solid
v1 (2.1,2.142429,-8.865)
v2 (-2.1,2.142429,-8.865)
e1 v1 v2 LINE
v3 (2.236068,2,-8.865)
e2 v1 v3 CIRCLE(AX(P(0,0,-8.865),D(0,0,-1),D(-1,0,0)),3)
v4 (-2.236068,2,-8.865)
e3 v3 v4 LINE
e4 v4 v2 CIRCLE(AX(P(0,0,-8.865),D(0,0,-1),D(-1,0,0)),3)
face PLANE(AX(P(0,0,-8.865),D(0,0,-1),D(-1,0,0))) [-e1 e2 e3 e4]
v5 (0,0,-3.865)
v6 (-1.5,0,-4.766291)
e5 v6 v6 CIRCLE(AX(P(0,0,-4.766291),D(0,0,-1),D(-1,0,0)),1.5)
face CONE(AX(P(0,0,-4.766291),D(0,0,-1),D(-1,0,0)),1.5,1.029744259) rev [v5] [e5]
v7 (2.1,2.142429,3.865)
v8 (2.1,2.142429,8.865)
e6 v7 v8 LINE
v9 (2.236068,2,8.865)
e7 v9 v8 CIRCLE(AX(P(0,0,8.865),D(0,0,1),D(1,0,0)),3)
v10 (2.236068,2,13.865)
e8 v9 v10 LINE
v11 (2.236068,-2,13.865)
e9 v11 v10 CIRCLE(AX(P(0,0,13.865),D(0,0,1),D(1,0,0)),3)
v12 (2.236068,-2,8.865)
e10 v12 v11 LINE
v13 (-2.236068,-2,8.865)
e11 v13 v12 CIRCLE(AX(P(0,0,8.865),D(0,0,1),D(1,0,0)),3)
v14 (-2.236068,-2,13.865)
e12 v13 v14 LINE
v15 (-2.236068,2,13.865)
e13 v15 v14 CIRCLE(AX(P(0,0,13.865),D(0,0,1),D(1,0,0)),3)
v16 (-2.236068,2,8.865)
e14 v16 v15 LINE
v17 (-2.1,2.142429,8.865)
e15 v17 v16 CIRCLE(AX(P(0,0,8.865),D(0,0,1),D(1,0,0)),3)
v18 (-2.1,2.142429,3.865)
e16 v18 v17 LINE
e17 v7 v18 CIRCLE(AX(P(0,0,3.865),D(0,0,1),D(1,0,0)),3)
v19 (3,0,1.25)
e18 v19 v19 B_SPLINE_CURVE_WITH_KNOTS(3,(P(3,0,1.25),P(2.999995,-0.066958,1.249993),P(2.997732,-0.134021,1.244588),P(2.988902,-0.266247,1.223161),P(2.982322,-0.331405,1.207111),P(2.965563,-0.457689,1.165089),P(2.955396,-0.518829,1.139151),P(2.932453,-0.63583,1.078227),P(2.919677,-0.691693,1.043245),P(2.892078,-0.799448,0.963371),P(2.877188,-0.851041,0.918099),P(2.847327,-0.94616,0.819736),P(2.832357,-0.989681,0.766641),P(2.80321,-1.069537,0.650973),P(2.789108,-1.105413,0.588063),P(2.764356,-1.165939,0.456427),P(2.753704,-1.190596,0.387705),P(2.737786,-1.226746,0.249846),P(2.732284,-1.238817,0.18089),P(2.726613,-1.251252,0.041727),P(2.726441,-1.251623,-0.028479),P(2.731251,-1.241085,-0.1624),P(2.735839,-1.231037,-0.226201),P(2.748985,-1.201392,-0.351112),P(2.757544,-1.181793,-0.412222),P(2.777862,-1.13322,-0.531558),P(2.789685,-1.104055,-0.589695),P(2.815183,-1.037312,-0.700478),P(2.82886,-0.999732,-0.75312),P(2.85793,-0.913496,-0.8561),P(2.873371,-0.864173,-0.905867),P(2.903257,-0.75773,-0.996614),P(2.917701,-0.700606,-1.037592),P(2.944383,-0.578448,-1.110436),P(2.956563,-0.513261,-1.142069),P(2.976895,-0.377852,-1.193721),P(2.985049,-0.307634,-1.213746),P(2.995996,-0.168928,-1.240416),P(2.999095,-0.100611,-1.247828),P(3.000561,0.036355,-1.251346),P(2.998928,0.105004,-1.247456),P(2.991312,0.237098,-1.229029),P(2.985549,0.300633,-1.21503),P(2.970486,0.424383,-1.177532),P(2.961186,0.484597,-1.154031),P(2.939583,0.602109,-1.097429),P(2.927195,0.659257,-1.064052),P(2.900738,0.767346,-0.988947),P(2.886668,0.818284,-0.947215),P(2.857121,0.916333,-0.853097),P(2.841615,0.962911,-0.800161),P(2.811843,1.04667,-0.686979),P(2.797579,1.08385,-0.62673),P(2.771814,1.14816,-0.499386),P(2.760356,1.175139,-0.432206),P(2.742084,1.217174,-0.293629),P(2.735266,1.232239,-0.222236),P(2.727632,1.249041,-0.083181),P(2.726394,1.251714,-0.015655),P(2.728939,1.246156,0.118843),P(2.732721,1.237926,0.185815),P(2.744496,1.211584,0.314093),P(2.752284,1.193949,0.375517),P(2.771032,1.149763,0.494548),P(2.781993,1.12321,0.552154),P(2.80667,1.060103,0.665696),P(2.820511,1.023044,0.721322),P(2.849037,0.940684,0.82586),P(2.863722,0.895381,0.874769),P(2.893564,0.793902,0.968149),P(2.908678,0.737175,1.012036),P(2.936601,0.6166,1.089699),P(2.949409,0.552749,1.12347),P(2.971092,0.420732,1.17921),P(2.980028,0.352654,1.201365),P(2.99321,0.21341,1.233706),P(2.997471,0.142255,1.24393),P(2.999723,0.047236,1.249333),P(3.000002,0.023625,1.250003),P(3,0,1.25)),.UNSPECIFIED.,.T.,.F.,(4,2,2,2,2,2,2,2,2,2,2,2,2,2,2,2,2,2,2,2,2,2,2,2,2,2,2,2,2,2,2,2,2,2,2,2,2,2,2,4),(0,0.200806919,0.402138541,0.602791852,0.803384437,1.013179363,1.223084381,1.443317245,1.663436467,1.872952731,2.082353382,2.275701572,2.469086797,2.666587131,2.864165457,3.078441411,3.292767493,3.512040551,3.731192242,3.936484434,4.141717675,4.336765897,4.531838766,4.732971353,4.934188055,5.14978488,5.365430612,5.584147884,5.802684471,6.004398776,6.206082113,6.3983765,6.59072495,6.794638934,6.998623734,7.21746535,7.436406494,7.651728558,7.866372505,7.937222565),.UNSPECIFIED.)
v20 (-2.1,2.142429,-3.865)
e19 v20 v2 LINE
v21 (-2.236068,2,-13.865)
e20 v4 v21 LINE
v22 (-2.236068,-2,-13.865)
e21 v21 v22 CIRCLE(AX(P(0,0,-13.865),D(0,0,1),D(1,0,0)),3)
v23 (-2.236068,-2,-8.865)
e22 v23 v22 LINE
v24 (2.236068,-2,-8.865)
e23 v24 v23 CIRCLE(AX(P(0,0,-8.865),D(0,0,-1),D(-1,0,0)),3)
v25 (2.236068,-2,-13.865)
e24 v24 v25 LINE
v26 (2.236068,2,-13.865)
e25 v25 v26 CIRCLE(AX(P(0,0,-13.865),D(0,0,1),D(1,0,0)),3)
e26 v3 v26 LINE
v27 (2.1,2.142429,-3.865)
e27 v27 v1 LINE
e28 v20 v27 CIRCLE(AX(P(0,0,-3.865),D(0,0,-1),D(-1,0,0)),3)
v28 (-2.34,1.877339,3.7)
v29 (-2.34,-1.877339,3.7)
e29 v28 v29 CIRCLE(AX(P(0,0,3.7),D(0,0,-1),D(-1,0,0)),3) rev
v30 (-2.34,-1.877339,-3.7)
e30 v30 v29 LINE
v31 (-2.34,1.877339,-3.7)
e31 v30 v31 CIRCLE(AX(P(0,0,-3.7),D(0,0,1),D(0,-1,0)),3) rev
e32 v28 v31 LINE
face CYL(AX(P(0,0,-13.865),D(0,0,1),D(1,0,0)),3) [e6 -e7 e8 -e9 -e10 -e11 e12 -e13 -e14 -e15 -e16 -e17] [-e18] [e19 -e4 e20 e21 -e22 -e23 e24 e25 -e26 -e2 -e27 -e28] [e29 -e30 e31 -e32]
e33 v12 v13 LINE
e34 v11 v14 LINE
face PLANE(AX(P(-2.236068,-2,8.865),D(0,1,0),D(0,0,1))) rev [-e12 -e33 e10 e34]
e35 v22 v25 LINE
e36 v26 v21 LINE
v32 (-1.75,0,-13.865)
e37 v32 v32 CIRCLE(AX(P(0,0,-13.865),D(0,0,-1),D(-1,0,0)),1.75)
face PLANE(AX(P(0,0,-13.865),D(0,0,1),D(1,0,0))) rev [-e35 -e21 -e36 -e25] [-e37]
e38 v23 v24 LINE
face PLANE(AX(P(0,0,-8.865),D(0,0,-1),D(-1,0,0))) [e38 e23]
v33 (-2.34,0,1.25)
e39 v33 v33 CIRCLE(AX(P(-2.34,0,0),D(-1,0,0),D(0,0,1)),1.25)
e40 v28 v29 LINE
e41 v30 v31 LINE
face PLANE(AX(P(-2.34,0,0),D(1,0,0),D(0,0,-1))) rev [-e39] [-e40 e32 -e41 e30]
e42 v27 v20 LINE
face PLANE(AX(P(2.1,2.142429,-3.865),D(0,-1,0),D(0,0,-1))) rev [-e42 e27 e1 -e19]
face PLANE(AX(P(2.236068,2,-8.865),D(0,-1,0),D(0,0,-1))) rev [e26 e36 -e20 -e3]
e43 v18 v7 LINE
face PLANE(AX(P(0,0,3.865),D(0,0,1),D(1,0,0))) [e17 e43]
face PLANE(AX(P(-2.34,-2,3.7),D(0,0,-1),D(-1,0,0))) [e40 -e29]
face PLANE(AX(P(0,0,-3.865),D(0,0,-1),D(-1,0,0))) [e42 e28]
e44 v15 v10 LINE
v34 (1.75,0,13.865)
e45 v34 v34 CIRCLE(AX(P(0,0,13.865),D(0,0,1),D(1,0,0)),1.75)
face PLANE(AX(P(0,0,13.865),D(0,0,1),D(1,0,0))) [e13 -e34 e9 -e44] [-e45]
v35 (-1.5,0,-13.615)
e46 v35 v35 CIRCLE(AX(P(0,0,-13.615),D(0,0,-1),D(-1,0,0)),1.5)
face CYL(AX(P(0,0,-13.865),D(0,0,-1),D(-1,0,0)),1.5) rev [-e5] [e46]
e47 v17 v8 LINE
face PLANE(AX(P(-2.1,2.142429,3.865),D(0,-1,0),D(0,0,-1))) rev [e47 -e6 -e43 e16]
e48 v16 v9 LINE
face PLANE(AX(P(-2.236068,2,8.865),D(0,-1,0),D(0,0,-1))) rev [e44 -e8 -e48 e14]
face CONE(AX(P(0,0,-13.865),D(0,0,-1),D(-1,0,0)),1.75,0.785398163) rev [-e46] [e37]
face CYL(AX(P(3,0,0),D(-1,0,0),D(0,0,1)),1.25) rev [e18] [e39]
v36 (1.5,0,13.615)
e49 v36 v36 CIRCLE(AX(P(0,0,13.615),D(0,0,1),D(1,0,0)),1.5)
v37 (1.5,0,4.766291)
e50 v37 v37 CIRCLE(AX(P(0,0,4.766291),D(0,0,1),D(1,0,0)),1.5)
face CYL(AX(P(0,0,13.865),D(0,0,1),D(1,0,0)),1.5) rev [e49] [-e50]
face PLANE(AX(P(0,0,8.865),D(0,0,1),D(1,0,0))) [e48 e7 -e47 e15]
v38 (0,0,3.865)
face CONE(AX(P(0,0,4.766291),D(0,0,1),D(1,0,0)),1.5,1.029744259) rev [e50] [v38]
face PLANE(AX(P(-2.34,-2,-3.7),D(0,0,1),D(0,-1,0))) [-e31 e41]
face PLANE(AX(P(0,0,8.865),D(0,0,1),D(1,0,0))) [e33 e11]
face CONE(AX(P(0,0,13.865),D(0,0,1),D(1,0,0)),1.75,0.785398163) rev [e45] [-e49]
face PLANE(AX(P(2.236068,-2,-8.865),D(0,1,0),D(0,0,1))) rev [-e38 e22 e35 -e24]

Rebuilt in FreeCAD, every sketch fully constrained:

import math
import FreeCAD as App
import Part
import Sketcher
Q = App.Units.Quantity

doc = App.newDocument("Part")
body = doc.addObject("PartDesign::Body", "Body")

# Sketch on XY plane
sketch1 = doc.addObject("Sketcher::SketchObject", "Sketch")
body.addObject(sketch1)
sketch1.AttachmentSupport = (doc.XY_Plane, [""])
sketch1.MapMode = "FlatFace"
sketch1.addGeometry(Part.Circle(App.Vector(0, 0, 0), App.Vector(0, 0, 1), 3), False)
sketch1.addConstraint([
    Sketcher.Constraint("Coincident", 0, 3, -1, 1),
    Sketcher.Constraint("Diameter", 0, Q("6 mm")),
])
pad1 = doc.addObject("PartDesign::Pad", "Pad")
body.addObject(pad1)
pad1.Profile = sketch1
pad1.Type = "TwoLengths"
pad1.Length = 13.865
pad1.Length2 = 13.865

# Sketch on XY plane
sketch2 = doc.addObject("Sketcher::SketchObject", "Sketch001")
body.addObject(sketch2)
sketch2.AttachmentSupport = (doc.XY_Plane, [""])
sketch2.MapMode = "FlatFace"
sketch2.AttachmentOffset = App.Placement(App.Vector(0, 0, 13.865), App.Rotation())
sketch2.addGeometry([
    Part.LineSegment(App.Vector(-2.236068, 2, 0), App.Vector(2.236068, 2, 0)),
    Part.ArcOfCircle(Part.Circle(App.Vector(0, 0, 0), App.Vector(0, 0, 1), 3), math.radians(41.810315), math.radians(138.189685)),
    Part.LineSegment(App.Vector(2.236068, -2, 0), App.Vector(-2.236068, -2, 0)),
    Part.ArcOfCircle(Part.Circle(App.Vector(0, 0, 0), App.Vector(0, 0, 1), 3), math.radians(-138.189685), math.radians(-41.810315)),
], False)
sketch2.addConstraint([
    Sketcher.Constraint("Coincident", 0, 1, 1, 2),
    Sketcher.Constraint("Coincident", 1, 1, 0, 2),
    Sketcher.Constraint("Coincident", 2, 1, 3, 2),
    Sketcher.Constraint("Coincident", 3, 1, 2, 2),
    Sketcher.Constraint("Horizontal", 0),
    Sketcher.Constraint("Horizontal", 2),
    Sketcher.Constraint("Coincident", 1, 3, -1, 1),
    Sketcher.Constraint("Coincident", 3, 3, -1, 1),
    Sketcher.Constraint("Equal", 1, 3),
    Sketcher.Constraint("Vertical", 1, 1, 2, 1),
    Sketcher.Constraint("Radius", 1, Q("3 mm")),
    Sketcher.Constraint("DistanceY", -1, 1, 0, 1, Q("2 mm")),
])
pocket1 = doc.addObject("PartDesign::Pocket", "Pocket")
body.addObject(pocket1)
pocket1.Profile = sketch2
pocket1.Length = 5

# Sketch on XY plane
sketch3 = doc.addObject("Sketcher::SketchObject", "Sketch002")
body.addObject(sketch3)
sketch3.AttachmentSupport = (doc.XY_Plane, [""])
sketch3.MapMode = "FlatFace"
sketch3.AttachmentOffset = App.Placement(App.Vector(0, 0, -13.865), App.Rotation())
sketch3.addGeometry([
    Part.LineSegment(App.Vector(2.236068, 2, 0), App.Vector(-2.236068, 2, 0)),
    Part.ArcOfCircle(Part.Circle(App.Vector(0, 0, 0), App.Vector(0, 0, 1), 3), math.radians(41.810315), math.radians(138.189685)),
    Part.LineSegment(App.Vector(-2.236068, -2, 0), App.Vector(2.236068, -2, 0)),
    Part.ArcOfCircle(Part.Circle(App.Vector(0, 0, 0), App.Vector(0, 0, 1), 3), math.radians(-138.189685), math.radians(-41.810315)),
], False)
sketch3.addConstraint([
    Sketcher.Constraint("Coincident", 0, 1, 1, 1),
    Sketcher.Constraint("Coincident", 1, 2, 0, 2),
    Sketcher.Constraint("Coincident", 2, 1, 3, 1),
    Sketcher.Constraint("Coincident", 3, 2, 2, 2),
    Sketcher.Constraint("Horizontal", 0),
    Sketcher.Constraint("Horizontal", 2),
    Sketcher.Constraint("Coincident", 1, 3, -1, 1),
    Sketcher.Constraint("Coincident", 3, 3, -1, 1),
    Sketcher.Constraint("Equal", 1, 3),
    Sketcher.Constraint("Vertical", 1, 2, 2, 1),
    Sketcher.Constraint("Radius", 1, Q("3 mm")),
    Sketcher.Constraint("DistanceY", -1, 1, 0, 1, Q("2 mm")),
])
pocket2 = doc.addObject("PartDesign::Pocket", "Pocket001")
body.addObject(pocket2)
pocket2.Profile = sketch3
pocket2.Length = 5
pocket2.Reversed = True

# Sketch on XY plane
sketch4 = doc.addObject("Sketcher::SketchObject", "Sketch003")
body.addObject(sketch4)
sketch4.AttachmentSupport = (doc.XY_Plane, [""])
sketch4.MapMode = "FlatFace"
sketch4.AttachmentOffset = App.Placement(App.Vector(0, 0, -8.865), App.Rotation())
sketch4.addGeometry([
    Part.LineSegment(App.Vector(2.1, 2.142429, 0), App.Vector(-2.1, 2.142429, 0)),
    Part.ArcOfCircle(Part.Circle(App.Vector(0, 0, 0), App.Vector(0, 0, 1), 3), math.radians(45.572996), math.radians(134.427004)),
], False)
sketch4.addConstraint([
    Sketcher.Constraint("Coincident", 0, 1, 1, 1),
    Sketcher.Constraint("Coincident", 1, 2, 0, 2),
    Sketcher.Constraint("Horizontal", 0),
    Sketcher.Constraint("Coincident", 1, 3, -1, 1),
    Sketcher.Constraint("Radius", 1, Q("3 mm")),
    Sketcher.Constraint("DistanceX", 0, 2, 0, 1, Q("4.2 mm")),
])
pocket3 = doc.addObject("PartDesign::Pocket", "Pocket002")
body.addObject(pocket3)
pocket3.Profile = sketch4
pocket3.Length = 5
pocket3.Reversed = True

# Sketch on XY plane
sketch5 = doc.addObject("Sketcher::SketchObject", "Sketch004")
body.addObject(sketch5)
sketch5.AttachmentSupport = (doc.XY_Plane, [""])
sketch5.MapMode = "FlatFace"
sketch5.AttachmentOffset = App.Placement(App.Vector(0, 0, 3.865), App.Rotation())
sketch5.addGeometry([
    Part.LineSegment(App.Vector(-2.1, 2.142429, 0), App.Vector(2.1, 2.142429, 0)),
    Part.ArcOfCircle(Part.Circle(App.Vector(0, 0, 0), App.Vector(0, 0, 1), 3), math.radians(45.572996), math.radians(134.427004)),
], False)
sketch5.addConstraint([
    Sketcher.Constraint("Coincident", 0, 1, 1, 2),
    Sketcher.Constraint("Coincident", 1, 1, 0, 2),
    Sketcher.Constraint("Horizontal", 0),
    Sketcher.Constraint("Coincident", 1, 3, -1, 1),
    Sketcher.Constraint("Radius", 1, Q("3 mm")),
    Sketcher.Constraint("DistanceX", 0, 1, 0, 2, Q("4.2 mm")),
])
pocket4 = doc.addObject("PartDesign::Pocket", "Pocket003")
body.addObject(pocket4)
pocket4.Profile = sketch5
pocket4.Length = 5
pocket4.Reversed = True

# Sketch on XY plane
sketch6 = doc.addObject("Sketcher::SketchObject", "Sketch005")
body.addObject(sketch6)
sketch6.AttachmentSupport = (doc.XY_Plane, [""])
sketch6.MapMode = "FlatFace"
sketch6.AttachmentOffset = App.Placement(App.Vector(0, 0, -13.865), App.Rotation())
sketch6.addGeometry(Part.Circle(App.Vector(0, 0, 0), App.Vector(0, 0, 1), 1.5), False)
sketch6.addConstraint([
    Sketcher.Constraint("Coincident", 0, 3, -1, 1),
    Sketcher.Constraint("Diameter", 0, Q("3 mm")),
])
doc.recompute()
hole = doc.addObject("PartDesign::Hole", "Hole")
body.addObject(hole)
hole.Profile = sketch6
hole.ThreadType = "None"
hole.Diameter = 3
hole.DepthType = "Dimension"
hole.Depth = 9.098709
hole.DrillPoint = "Angled"
hole.DrillPointAngle = 118
hole.HoleCutType = "Countersink"
hole.HoleCutDiameter = 3.5
hole.HoleCutCountersinkAngle = 90
hole.Reversed = True

# Sketch on XY plane
sketch7 = doc.addObject("Sketcher::SketchObject", "Sketch006")
body.addObject(sketch7)
sketch7.AttachmentSupport = (doc.XY_Plane, [""])
sketch7.MapMode = "FlatFace"
sketch7.AttachmentOffset = App.Placement(App.Vector(0, 0, 13.865), App.Rotation())
sketch7.addGeometry(Part.Circle(App.Vector(0, 0, 0), App.Vector(0, 0, 1), 1.5), False)
sketch7.addConstraint([
    Sketcher.Constraint("Coincident", 0, 3, -1, 1),
    Sketcher.Constraint("Diameter", 0, Q("3 mm")),
])
doc.recompute()
hole2 = doc.addObject("PartDesign::Hole", "Hole001")
body.addObject(hole2)
hole2.Profile = sketch7
hole2.ThreadType = "None"
hole2.Diameter = 3
hole2.DepthType = "Dimension"
hole2.Depth = 9.098709
hole2.DrillPoint = "Angled"
hole2.DrillPointAngle = 118
hole2.HoleCutType = "Countersink"
hole2.HoleCutDiameter = 3.5
hole2.HoleCutCountersinkAngle = 90

# Sketch on YZ plane
sketch8 = doc.addObject("Sketcher::SketchObject", "Sketch007")
body.addObject(sketch8)
sketch8.AttachmentSupport = (doc.YZ_Plane, [""])
sketch8.MapMode = "FlatFace"
sketch8.AttachmentOffset = App.Placement(App.Vector(0, 0, -5.34), App.Rotation())
sketch8.addGeometry([
    Part.LineSegment(App.Vector(2, 3.7, 0), App.Vector(-2, 3.7, 0)),
    Part.LineSegment(App.Vector(-2, 3.7, 0), App.Vector(-2, -3.7, 0)),
    Part.LineSegment(App.Vector(-2, -3.7, 0), App.Vector(2, -3.7, 0)),
    Part.LineSegment(App.Vector(2, -3.7, 0), App.Vector(2, 3.7, 0)),
], False)
sketch8.addConstraint([
    Sketcher.Constraint("Coincident", 0, 2, 1, 1),
    Sketcher.Constraint("Coincident", 1, 2, 2, 1),
    Sketcher.Constraint("Coincident", 2, 2, 3, 1),
    Sketcher.Constraint("Coincident", 3, 2, 0, 1),
    Sketcher.Constraint("Horizontal", 0),
    Sketcher.Constraint("Vertical", 1),
    Sketcher.Constraint("Horizontal", 2),
    Sketcher.Constraint("Vertical", 3),
    Sketcher.Constraint("Symmetric", 0, 2, 2, 2, -1, 1),
    Sketcher.Constraint("DistanceX", 0, 2, 0, 1, Q("4 mm")),
    Sketcher.Constraint("DistanceY", 1, 2, 1, 1, Q("7.4 mm")),
])
pocket5 = doc.addObject("PartDesign::Pocket", "Pocket004")
body.addObject(pocket5)
pocket5.Profile = sketch8
pocket5.Length = 3
pocket5.Reversed = True

# Sketch on YZ plane
sketch9 = doc.addObject("Sketcher::SketchObject", "Sketch008")
body.addObject(sketch9)
sketch9.AttachmentSupport = (doc.YZ_Plane, [""])
sketch9.MapMode = "FlatFace"
sketch9.AttachmentOffset = App.Placement(App.Vector(0, 0, -2.34), App.Rotation())
sketch9.addGeometry(Part.Circle(App.Vector(0, 0, 0), App.Vector(0, 0, 1), 1.25), False)
sketch9.addConstraint([
    Sketcher.Constraint("Coincident", 0, 3, -1, 1),
    Sketcher.Constraint("Diameter", 0, Q("2.5 mm")),
])
pocket6 = doc.addObject("PartDesign::Pocket", "Pocket005")
body.addObject(pocket6)
pocket6.Profile = sketch9
pocket6.Type = "ThroughAll"
pocket6.Reversed = True

doc.recompute()
